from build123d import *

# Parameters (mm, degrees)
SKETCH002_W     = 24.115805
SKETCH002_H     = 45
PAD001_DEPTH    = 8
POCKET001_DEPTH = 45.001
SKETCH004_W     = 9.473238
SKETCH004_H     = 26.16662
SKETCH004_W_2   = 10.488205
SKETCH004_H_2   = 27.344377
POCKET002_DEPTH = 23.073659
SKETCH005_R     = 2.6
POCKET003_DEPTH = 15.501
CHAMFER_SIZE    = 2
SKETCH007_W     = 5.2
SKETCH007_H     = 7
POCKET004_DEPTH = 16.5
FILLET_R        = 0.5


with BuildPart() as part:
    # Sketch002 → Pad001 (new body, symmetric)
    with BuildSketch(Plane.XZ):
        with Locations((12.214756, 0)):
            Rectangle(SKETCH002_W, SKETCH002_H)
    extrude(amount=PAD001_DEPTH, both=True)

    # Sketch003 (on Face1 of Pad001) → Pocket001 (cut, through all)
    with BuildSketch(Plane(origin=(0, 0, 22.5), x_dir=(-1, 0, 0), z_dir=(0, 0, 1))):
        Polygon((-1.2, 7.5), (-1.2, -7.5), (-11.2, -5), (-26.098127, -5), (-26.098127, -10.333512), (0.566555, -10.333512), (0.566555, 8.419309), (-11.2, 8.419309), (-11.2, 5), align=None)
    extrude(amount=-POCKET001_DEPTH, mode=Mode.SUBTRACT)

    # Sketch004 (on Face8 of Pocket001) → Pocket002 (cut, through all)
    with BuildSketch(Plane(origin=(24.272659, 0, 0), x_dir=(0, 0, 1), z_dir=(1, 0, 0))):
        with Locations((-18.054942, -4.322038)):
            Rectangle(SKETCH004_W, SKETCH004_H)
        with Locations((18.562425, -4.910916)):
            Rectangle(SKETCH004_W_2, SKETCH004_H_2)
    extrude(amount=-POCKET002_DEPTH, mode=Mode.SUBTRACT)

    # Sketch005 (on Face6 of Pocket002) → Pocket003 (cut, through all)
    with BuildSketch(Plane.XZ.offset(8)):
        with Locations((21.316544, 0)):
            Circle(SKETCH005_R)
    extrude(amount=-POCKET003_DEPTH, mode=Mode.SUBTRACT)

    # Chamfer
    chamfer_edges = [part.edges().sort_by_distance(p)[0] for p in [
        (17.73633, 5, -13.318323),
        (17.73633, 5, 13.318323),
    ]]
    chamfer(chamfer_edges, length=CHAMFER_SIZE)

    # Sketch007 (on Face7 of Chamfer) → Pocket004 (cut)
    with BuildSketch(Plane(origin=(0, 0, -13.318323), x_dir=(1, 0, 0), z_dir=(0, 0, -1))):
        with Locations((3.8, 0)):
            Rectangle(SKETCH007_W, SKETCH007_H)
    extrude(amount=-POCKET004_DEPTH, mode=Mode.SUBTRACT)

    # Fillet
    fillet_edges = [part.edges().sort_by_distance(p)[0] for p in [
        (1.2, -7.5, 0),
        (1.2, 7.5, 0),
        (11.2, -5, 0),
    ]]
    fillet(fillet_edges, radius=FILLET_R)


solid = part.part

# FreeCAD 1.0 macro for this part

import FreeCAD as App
import Part
import Sketcher


def edges_at(feature, points):
    """Names of the edges that pass closest to the given points."""
    edges = feature.Shape.Edges
    near = lambda p: min(range(len(edges)), key=lambda i: edges[i].distToShape(Part.Vertex(*p))[0])
    return sorted({f"Edge{near(p) + 1}" for p in points})

doc = App.newDocument("Part")
body = doc.addObject("PartDesign::Body", "Body")

# Sketch on XZ plane
sketch1 = body.newObject("Sketcher::SketchObject", "Sketch")
sketch1.AttachmentSupport = (doc.getObject("XZ_Plane"), [""])
sketch1.MapMode = "FlatFace"
sketch1.addGeometry([
    Part.LineSegment(App.Vector(0, 22, 0), App.Vector(0, -22, 0)),
    Part.LineSegment(App.Vector(0, -22, 0), App.Vector(24, -22, 0)),
    Part.LineSegment(App.Vector(24, -22, 0), App.Vector(24, 22, 0)),
    Part.LineSegment(App.Vector(24, 22, 0), App.Vector(0, 22, 0)),
], False)
sketch1.addConstraint([
    Sketcher.Constraint("Coincident", 0, 2, 1, 1),
    Sketcher.Constraint("Coincident", 1, 2, 2, 1),
    Sketcher.Constraint("Coincident", 2, 2, 3, 1),
    Sketcher.Constraint("Coincident", 3, 2, 0, 1),
    Sketcher.Constraint("Vertical", 0),
    Sketcher.Constraint("Horizontal", 1),
    Sketcher.Constraint("Vertical", 2),
    Sketcher.Constraint("Horizontal", 3),
    Sketcher.Constraint("DistanceY", 0, 2, 0, 1, 45.0),
    Sketcher.Constraint("DistanceY", 0, 2, -1, 1, 22.5),
    Sketcher.Constraint("DistanceX", 1, 1, 1, 2, 24.115805),
    Sketcher.Constraint("DistanceX", -1, 1, 1, 2, 24.272658),
])
pad1 = body.newObject("PartDesign::Pad", "Pad")
pad1.Profile = sketch1
pad1.Length = 16
pad1.Midplane = True

# Sketch on XY plane
sketch2 = body.newObject("Sketcher::SketchObject", "Sketch001")
sketch2.AttachmentSupport = (doc.getObject("XY_Plane"), [""])
sketch2.MapMode = "FlatFace"
sketch2.AttachmentOffset = App.Placement(App.Vector(0, 0, 22.5), App.Rotation())
sketch2.addGeometry([
    Part.LineSegment(App.Vector(1.2, -7.5, 0), App.Vector(1.2, 7.5, 0)),  # 0
    Part.LineSegment(App.Vector(1.2, 7.5, 0), App.Vector(11.2, 5, 0)),  # 1
    Part.LineSegment(App.Vector(11.2, 5, 0), App.Vector(26.1, 5, 0)),  # 2
    Part.LineSegment(App.Vector(26.1, 5, 0), App.Vector(26.1, 10.3, 0)),  # 3
    Part.LineSegment(App.Vector(26.1, 10.3, 0), App.Vector(-0.6, 10.3, 0)),  # 4
    Part.LineSegment(App.Vector(-0.6, 10.3, 0), App.Vector(-0.6, -8.4, 0)),  # 5
    Part.LineSegment(App.Vector(-0.6, -8.4, 0), App.Vector(11.2, -8.4, 0)),  # 6
    Part.LineSegment(App.Vector(11.2, -8.4, 0), App.Vector(11.2, -5, 0)),  # 7
    Part.LineSegment(App.Vector(11.2, -5, 0), App.Vector(1.2, -7.5, 0)),  # 8
], False)
sketch2.addConstraint([
    Sketcher.Constraint("Coincident", 0, 2, 1, 1),
    Sketcher.Constraint("Coincident", 1, 2, 2, 1),
    Sketcher.Constraint("Coincident", 2, 2, 3, 1),
    Sketcher.Constraint("Coincident", 3, 2, 4, 1),
    Sketcher.Constraint("Coincident", 4, 2, 5, 1),
    Sketcher.Constraint("Coincident", 5, 2, 6, 1),
    Sketcher.Constraint("Coincident", 6, 2, 7, 1),
    Sketcher.Constraint("Coincident", 7, 2, 8, 1),
    Sketcher.Constraint("Coincident", 8, 2, 0, 1),
    Sketcher.Constraint("Vertical", 0),
    Sketcher.Constraint("Horizontal", 2),
    Sketcher.Constraint("Vertical", 3),
    Sketcher.Constraint("Horizontal", 4),
    Sketcher.Constraint("Vertical", 5),
    Sketcher.Constraint("Horizontal", 6),
    Sketcher.Constraint("Vertical", 7),
    Sketcher.Constraint("Symmetric", 1, 2, 7, 2, -1),
    Sketcher.Constraint("Equal", 1, 8),
    Sketcher.Constraint("DistanceY", 0, 1, 0, 2, 15.0),
    Sketcher.Constraint("DistanceY", -1, 1, 1, 2, 5.0),
    Sketcher.Constraint("DistanceX", 0, 2, 1, 2, 10.0),
    Sketcher.Constraint("DistanceX", -1, 1, 0, 2, 1.2),
    Sketcher.Constraint("DistanceY", 5, 2, 5, 1, 18.752821),
    Sketcher.Constraint("DistanceY", 7, 1, 7, 2, 3.419309),
    Sketcher.Constraint("DistanceX", 2, 1, 2, 2, 14.898127),
    Sketcher.Constraint("DistanceX", 4, 2, 4, 1, 26.664682),
])
pocket1 = body.newObject("PartDesign::Pocket", "Pocket")
pocket1.Profile = sketch2
pocket1.Type = "ThroughAll"

# Sketch on YZ plane
sketch3 = body.newObject("Sketcher::SketchObject", "Sketch002")
sketch3.AttachmentSupport = (doc.getObject("YZ_Plane"), [""])
sketch3.MapMode = "FlatFace"
sketch3.AttachmentOffset = App.Placement(App.Vector(0, 0, 24.272659), App.Rotation())
sketch3.addGeometry([
    Part.LineSegment(App.Vector(-9, -23, 0), App.Vector(17, -23, 0)),  # 0
    Part.LineSegment(App.Vector(17, -23, 0), App.Vector(17, -13, 0)),  # 1
    Part.LineSegment(App.Vector(17, -13, 0), App.Vector(-9, -13, 0)),  # 2
    Part.LineSegment(App.Vector(-9, -13, 0), App.Vector(-9, -23, 0)),  # 3
    Part.LineSegment(App.Vector(-9, 13, 0), App.Vector(19, 13, 0)),  # 4
    Part.LineSegment(App.Vector(19, 13, 0), App.Vector(19, 24, 0)),  # 5
    Part.LineSegment(App.Vector(19, 24, 0), App.Vector(-9, 24, 0)),  # 6
    Part.LineSegment(App.Vector(-9, 24, 0), App.Vector(-9, 13, 0)),  # 7
], False)
sketch3.addConstraint([
    Sketcher.Constraint("Coincident", 0, 2, 1, 1),
    Sketcher.Constraint("Coincident", 1, 2, 2, 1),
    Sketcher.Constraint("Coincident", 2, 2, 3, 1),
    Sketcher.Constraint("Coincident", 3, 2, 0, 1),
    Sketcher.Constraint("Coincident", 4, 2, 5, 1),
    Sketcher.Constraint("Coincident", 5, 2, 6, 1),
    Sketcher.Constraint("Coincident", 6, 2, 7, 1),
    Sketcher.Constraint("Coincident", 7, 2, 4, 1),
    Sketcher.Constraint("Horizontal", 0),
    Sketcher.Constraint("Vertical", 1),
    Sketcher.Constraint("Horizontal", 2),
    Sketcher.Constraint("Vertical", 3),
    Sketcher.Constraint("Horizontal", 4),
    Sketcher.Constraint("Vertical", 5),
    Sketcher.Constraint("Horizontal", 6),
    Sketcher.Constraint("Vertical", 7),
    Sketcher.Constraint("Symmetric", 2, 2, 7, 2, -1),
    Sketcher.Constraint("DistanceX", 0, 1, 0, 2, 26.16662),
    Sketcher.Constraint("DistanceY", 1, 1, 1, 2, 9.473238),
    Sketcher.Constraint("DistanceX", 4, 1, 4, 2, 27.344377),
    Sketcher.Constraint("DistanceY", 5, 1, 5, 2, 10.488205),
    Sketcher.Constraint("DistanceX", -1, 1, 0, 2, 17.405348),
    Sketcher.Constraint("DistanceY", 0, 2, -1, 1, 22.791561),
])
pocket2 = body.newObject("PartDesign::Pocket", "Pocket001")
pocket2.Profile = sketch3
pocket2.Type = "ThroughAll"

# Sketch on XZ plane
sketch4 = body.newObject("Sketcher::SketchObject", "Sketch003")
sketch4.AttachmentSupport = (doc.getObject("XZ_Plane"), [""])
sketch4.MapMode = "FlatFace"
sketch4.AttachmentOffset = App.Placement(App.Vector(0, 0, 8), App.Rotation())
sketch4.addGeometry(Part.Circle(App.Vector(21.3, 0, 0), App.Vector(0, 0, 1), 2.6), False)
sketch4.addConstraint([
    Sketcher.Constraint("PointOnObject", 0, 3, -1),
    Sketcher.Constraint("Diameter", 0, 5.2),
    Sketcher.Constraint("DistanceX", -1, 1, 0, 3, 21.316544),
])
pocket3 = body.newObject("PartDesign::Pocket", "Pocket002")
pocket3.Profile = sketch4
pocket3.Type = "ThroughAll"
doc.recompute()

chamfer = body.newObject("PartDesign::Chamfer", "Chamfer")
chamfer.Base = (pocket3, edges_at(pocket3, [(17.736, 5, -13.318), (17.736, 5, 13.318)]))
chamfer.Size = 2

# Sketch on XY plane
sketch5 = body.newObject("Sketcher::SketchObject", "Sketch004")
sketch5.AttachmentSupport = (doc.getObject("XY_Plane"), [""])
sketch5.MapMode = "FlatFace"
sketch5.AttachmentOffset = App.Placement(App.Vector(0, 0, -13.318323), App.Rotation())
sketch5.addGeometry([
    Part.LineSegment(App.Vector(1, -4, 0), App.Vector(1, 4, 0)),
    Part.LineSegment(App.Vector(1, 4, 0), App.Vector(6, 4, 0)),
    Part.LineSegment(App.Vector(6, 4, 0), App.Vector(6, -4, 0)),
    Part.LineSegment(App.Vector(6, -4, 0), App.Vector(1, -4, 0)),
], False)
sketch5.addConstraint([
    Sketcher.Constraint("Coincident", 0, 2, 1, 1),
    Sketcher.Constraint("Coincident", 1, 2, 2, 1),
    Sketcher.Constraint("Coincident", 2, 2, 3, 1),
    Sketcher.Constraint("Coincident", 3, 2, 0, 1),
    Sketcher.Constraint("Vertical", 0),
    Sketcher.Constraint("Horizontal", 1),
    Sketcher.Constraint("Vertical", 2),
    Sketcher.Constraint("Horizontal", 3),
    Sketcher.Constraint("DistanceY", 0, 1, 0, 2, 7.0),
    Sketcher.Constraint("DistanceX", 1, 1, 1, 2, 5.2),
    Sketcher.Constraint("DistanceX", -1, 1, 0, 2, 1.2),
    Sketcher.Constraint("DistanceY", -1, 1, 0, 2, 3.5),
])
pocket4 = body.newObject("PartDesign::Pocket", "Pocket003")
pocket4.Profile = sketch5
pocket4.Length = 16.5
pocket4.Reversed = True
doc.recompute()

fillet = body.newObject("PartDesign::Fillet", "Fillet")
fillet.Base = (pocket4, edges_at(pocket4, [(1.2, -7.5, 0), (1.2, 7.5, 0), (11.2, -5, 0)]))
fillet.Radius = 0.5

doc.recompute()
